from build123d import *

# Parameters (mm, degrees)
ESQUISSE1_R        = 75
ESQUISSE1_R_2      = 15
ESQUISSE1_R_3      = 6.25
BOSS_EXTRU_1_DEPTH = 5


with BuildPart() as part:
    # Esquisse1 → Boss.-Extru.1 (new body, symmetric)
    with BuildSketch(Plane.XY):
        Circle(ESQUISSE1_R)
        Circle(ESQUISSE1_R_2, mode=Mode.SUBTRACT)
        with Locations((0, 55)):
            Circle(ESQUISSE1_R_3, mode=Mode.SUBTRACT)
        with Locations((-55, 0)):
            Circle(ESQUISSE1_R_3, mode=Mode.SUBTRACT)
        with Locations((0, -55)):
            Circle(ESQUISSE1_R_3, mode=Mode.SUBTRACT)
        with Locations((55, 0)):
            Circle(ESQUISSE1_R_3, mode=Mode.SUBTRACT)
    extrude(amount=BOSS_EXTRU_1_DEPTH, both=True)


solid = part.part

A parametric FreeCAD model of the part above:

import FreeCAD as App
import Part
import Sketcher

V = App.Vector
Q = App.Units.Quantity

doc = App.newDocument("Part")
params = doc.addObject("Spreadsheet::Sheet", "Params")
for row, (alias, value) in enumerate([
    ("sketch1_diameter", "150 mm"),
    ("sketch1_diameter2", "30 mm"),
    ("sketch1_diameter3", "12.5 mm"),
    ("pad1_length", "10 mm"),
], start=1):
    params.set(f"A{row}", alias)
    params.set(f"B{row}", "=" + value)
    params.setAlias(f"B{row}", alias)

body = doc.addObject("PartDesign::Body", "Body")

sketch1 = body.newObject("Sketcher::SketchObject", "Sketch")
sketch1.AttachmentSupport = (doc.getObject("XY_Plane"), [""])
sketch1.MapMode = "FlatFace"
sketch1.addGeometry(Part.Circle(V(0, 0, 0), V(0, 0, 1), 75), False)
sketch1.addGeometry(Part.Circle(V(0, -55, 0), V(0, 0, 1), 6.25), False)
sketch1.addGeometry(Part.Circle(V(-55, 0, 0), V(0, 0, 1), 6.25), False)
sketch1.addGeometry(Part.Circle(V(0, 0, 0), V(0, 0, 1), 15), False)
sketch1.addGeometry(Part.Circle(V(55, 0, 0), V(0, 0, 1), 6.25), False)
sketch1.addGeometry(Part.Circle(V(0, 55, 0), V(0, 0, 1), 6.25), False)
sketch1.addConstraint(Sketcher.Constraint("Coincident", 0, 3, -1, 1))
sketch1.addConstraint(Sketcher.Constraint("Coincident", 3, 3, -1, 1))
sketch1.addConstraint(Sketcher.Constraint("Equal", 1, 2))
sketch1.addConstraint(Sketcher.Constraint("Equal", 2, 4))
sketch1.addConstraint(Sketcher.Constraint("Equal", 4, 5))
sketch1.addConstraint(Sketcher.Constraint("Symmetric", 2, 3, 4, 3, -1, 1))
sketch1.addConstraint(Sketcher.Constraint("Symmetric", 1, 3, 5, 3, -1, 1))
sketch1.addConstraint(Sketcher.Constraint("PointOnObject", 1, 3, -2))
sketch1.addConstraint(Sketcher.Constraint("PointOnObject", 2, 3, -1))
sketch1.addConstraint(Sketcher.Constraint("Diameter", 0, Q("150 mm")))
sketch1.addConstraint(Sketcher.Constraint("Diameter", 3, Q("30 mm")))
sketch1.addConstraint(Sketcher.Constraint("Diameter", 1, Q("12.5 mm")))
sketch1.addConstraint(Sketcher.Constraint("DistanceY", 1, 3, -1, 1, Q("55 mm")))
sketch1.addConstraint(Sketcher.Constraint("DistanceX", 2, 3, -1, 1, Q("55 mm")))
sketch1.setExpression("Constraints[9]", "Params.sketch1_diameter")
sketch1.setExpression("Constraints[10]", "Params.sketch1_diameter2")
sketch1.setExpression("Constraints[11]", "Params.sketch1_diameter3")
pad1 = body.newObject("PartDesign::Pad", "Pad")
pad1.Profile = sketch1
pad1.setExpression("Length", "Params.pad1_length")
pad1.Midplane = True

doc.recompute()
